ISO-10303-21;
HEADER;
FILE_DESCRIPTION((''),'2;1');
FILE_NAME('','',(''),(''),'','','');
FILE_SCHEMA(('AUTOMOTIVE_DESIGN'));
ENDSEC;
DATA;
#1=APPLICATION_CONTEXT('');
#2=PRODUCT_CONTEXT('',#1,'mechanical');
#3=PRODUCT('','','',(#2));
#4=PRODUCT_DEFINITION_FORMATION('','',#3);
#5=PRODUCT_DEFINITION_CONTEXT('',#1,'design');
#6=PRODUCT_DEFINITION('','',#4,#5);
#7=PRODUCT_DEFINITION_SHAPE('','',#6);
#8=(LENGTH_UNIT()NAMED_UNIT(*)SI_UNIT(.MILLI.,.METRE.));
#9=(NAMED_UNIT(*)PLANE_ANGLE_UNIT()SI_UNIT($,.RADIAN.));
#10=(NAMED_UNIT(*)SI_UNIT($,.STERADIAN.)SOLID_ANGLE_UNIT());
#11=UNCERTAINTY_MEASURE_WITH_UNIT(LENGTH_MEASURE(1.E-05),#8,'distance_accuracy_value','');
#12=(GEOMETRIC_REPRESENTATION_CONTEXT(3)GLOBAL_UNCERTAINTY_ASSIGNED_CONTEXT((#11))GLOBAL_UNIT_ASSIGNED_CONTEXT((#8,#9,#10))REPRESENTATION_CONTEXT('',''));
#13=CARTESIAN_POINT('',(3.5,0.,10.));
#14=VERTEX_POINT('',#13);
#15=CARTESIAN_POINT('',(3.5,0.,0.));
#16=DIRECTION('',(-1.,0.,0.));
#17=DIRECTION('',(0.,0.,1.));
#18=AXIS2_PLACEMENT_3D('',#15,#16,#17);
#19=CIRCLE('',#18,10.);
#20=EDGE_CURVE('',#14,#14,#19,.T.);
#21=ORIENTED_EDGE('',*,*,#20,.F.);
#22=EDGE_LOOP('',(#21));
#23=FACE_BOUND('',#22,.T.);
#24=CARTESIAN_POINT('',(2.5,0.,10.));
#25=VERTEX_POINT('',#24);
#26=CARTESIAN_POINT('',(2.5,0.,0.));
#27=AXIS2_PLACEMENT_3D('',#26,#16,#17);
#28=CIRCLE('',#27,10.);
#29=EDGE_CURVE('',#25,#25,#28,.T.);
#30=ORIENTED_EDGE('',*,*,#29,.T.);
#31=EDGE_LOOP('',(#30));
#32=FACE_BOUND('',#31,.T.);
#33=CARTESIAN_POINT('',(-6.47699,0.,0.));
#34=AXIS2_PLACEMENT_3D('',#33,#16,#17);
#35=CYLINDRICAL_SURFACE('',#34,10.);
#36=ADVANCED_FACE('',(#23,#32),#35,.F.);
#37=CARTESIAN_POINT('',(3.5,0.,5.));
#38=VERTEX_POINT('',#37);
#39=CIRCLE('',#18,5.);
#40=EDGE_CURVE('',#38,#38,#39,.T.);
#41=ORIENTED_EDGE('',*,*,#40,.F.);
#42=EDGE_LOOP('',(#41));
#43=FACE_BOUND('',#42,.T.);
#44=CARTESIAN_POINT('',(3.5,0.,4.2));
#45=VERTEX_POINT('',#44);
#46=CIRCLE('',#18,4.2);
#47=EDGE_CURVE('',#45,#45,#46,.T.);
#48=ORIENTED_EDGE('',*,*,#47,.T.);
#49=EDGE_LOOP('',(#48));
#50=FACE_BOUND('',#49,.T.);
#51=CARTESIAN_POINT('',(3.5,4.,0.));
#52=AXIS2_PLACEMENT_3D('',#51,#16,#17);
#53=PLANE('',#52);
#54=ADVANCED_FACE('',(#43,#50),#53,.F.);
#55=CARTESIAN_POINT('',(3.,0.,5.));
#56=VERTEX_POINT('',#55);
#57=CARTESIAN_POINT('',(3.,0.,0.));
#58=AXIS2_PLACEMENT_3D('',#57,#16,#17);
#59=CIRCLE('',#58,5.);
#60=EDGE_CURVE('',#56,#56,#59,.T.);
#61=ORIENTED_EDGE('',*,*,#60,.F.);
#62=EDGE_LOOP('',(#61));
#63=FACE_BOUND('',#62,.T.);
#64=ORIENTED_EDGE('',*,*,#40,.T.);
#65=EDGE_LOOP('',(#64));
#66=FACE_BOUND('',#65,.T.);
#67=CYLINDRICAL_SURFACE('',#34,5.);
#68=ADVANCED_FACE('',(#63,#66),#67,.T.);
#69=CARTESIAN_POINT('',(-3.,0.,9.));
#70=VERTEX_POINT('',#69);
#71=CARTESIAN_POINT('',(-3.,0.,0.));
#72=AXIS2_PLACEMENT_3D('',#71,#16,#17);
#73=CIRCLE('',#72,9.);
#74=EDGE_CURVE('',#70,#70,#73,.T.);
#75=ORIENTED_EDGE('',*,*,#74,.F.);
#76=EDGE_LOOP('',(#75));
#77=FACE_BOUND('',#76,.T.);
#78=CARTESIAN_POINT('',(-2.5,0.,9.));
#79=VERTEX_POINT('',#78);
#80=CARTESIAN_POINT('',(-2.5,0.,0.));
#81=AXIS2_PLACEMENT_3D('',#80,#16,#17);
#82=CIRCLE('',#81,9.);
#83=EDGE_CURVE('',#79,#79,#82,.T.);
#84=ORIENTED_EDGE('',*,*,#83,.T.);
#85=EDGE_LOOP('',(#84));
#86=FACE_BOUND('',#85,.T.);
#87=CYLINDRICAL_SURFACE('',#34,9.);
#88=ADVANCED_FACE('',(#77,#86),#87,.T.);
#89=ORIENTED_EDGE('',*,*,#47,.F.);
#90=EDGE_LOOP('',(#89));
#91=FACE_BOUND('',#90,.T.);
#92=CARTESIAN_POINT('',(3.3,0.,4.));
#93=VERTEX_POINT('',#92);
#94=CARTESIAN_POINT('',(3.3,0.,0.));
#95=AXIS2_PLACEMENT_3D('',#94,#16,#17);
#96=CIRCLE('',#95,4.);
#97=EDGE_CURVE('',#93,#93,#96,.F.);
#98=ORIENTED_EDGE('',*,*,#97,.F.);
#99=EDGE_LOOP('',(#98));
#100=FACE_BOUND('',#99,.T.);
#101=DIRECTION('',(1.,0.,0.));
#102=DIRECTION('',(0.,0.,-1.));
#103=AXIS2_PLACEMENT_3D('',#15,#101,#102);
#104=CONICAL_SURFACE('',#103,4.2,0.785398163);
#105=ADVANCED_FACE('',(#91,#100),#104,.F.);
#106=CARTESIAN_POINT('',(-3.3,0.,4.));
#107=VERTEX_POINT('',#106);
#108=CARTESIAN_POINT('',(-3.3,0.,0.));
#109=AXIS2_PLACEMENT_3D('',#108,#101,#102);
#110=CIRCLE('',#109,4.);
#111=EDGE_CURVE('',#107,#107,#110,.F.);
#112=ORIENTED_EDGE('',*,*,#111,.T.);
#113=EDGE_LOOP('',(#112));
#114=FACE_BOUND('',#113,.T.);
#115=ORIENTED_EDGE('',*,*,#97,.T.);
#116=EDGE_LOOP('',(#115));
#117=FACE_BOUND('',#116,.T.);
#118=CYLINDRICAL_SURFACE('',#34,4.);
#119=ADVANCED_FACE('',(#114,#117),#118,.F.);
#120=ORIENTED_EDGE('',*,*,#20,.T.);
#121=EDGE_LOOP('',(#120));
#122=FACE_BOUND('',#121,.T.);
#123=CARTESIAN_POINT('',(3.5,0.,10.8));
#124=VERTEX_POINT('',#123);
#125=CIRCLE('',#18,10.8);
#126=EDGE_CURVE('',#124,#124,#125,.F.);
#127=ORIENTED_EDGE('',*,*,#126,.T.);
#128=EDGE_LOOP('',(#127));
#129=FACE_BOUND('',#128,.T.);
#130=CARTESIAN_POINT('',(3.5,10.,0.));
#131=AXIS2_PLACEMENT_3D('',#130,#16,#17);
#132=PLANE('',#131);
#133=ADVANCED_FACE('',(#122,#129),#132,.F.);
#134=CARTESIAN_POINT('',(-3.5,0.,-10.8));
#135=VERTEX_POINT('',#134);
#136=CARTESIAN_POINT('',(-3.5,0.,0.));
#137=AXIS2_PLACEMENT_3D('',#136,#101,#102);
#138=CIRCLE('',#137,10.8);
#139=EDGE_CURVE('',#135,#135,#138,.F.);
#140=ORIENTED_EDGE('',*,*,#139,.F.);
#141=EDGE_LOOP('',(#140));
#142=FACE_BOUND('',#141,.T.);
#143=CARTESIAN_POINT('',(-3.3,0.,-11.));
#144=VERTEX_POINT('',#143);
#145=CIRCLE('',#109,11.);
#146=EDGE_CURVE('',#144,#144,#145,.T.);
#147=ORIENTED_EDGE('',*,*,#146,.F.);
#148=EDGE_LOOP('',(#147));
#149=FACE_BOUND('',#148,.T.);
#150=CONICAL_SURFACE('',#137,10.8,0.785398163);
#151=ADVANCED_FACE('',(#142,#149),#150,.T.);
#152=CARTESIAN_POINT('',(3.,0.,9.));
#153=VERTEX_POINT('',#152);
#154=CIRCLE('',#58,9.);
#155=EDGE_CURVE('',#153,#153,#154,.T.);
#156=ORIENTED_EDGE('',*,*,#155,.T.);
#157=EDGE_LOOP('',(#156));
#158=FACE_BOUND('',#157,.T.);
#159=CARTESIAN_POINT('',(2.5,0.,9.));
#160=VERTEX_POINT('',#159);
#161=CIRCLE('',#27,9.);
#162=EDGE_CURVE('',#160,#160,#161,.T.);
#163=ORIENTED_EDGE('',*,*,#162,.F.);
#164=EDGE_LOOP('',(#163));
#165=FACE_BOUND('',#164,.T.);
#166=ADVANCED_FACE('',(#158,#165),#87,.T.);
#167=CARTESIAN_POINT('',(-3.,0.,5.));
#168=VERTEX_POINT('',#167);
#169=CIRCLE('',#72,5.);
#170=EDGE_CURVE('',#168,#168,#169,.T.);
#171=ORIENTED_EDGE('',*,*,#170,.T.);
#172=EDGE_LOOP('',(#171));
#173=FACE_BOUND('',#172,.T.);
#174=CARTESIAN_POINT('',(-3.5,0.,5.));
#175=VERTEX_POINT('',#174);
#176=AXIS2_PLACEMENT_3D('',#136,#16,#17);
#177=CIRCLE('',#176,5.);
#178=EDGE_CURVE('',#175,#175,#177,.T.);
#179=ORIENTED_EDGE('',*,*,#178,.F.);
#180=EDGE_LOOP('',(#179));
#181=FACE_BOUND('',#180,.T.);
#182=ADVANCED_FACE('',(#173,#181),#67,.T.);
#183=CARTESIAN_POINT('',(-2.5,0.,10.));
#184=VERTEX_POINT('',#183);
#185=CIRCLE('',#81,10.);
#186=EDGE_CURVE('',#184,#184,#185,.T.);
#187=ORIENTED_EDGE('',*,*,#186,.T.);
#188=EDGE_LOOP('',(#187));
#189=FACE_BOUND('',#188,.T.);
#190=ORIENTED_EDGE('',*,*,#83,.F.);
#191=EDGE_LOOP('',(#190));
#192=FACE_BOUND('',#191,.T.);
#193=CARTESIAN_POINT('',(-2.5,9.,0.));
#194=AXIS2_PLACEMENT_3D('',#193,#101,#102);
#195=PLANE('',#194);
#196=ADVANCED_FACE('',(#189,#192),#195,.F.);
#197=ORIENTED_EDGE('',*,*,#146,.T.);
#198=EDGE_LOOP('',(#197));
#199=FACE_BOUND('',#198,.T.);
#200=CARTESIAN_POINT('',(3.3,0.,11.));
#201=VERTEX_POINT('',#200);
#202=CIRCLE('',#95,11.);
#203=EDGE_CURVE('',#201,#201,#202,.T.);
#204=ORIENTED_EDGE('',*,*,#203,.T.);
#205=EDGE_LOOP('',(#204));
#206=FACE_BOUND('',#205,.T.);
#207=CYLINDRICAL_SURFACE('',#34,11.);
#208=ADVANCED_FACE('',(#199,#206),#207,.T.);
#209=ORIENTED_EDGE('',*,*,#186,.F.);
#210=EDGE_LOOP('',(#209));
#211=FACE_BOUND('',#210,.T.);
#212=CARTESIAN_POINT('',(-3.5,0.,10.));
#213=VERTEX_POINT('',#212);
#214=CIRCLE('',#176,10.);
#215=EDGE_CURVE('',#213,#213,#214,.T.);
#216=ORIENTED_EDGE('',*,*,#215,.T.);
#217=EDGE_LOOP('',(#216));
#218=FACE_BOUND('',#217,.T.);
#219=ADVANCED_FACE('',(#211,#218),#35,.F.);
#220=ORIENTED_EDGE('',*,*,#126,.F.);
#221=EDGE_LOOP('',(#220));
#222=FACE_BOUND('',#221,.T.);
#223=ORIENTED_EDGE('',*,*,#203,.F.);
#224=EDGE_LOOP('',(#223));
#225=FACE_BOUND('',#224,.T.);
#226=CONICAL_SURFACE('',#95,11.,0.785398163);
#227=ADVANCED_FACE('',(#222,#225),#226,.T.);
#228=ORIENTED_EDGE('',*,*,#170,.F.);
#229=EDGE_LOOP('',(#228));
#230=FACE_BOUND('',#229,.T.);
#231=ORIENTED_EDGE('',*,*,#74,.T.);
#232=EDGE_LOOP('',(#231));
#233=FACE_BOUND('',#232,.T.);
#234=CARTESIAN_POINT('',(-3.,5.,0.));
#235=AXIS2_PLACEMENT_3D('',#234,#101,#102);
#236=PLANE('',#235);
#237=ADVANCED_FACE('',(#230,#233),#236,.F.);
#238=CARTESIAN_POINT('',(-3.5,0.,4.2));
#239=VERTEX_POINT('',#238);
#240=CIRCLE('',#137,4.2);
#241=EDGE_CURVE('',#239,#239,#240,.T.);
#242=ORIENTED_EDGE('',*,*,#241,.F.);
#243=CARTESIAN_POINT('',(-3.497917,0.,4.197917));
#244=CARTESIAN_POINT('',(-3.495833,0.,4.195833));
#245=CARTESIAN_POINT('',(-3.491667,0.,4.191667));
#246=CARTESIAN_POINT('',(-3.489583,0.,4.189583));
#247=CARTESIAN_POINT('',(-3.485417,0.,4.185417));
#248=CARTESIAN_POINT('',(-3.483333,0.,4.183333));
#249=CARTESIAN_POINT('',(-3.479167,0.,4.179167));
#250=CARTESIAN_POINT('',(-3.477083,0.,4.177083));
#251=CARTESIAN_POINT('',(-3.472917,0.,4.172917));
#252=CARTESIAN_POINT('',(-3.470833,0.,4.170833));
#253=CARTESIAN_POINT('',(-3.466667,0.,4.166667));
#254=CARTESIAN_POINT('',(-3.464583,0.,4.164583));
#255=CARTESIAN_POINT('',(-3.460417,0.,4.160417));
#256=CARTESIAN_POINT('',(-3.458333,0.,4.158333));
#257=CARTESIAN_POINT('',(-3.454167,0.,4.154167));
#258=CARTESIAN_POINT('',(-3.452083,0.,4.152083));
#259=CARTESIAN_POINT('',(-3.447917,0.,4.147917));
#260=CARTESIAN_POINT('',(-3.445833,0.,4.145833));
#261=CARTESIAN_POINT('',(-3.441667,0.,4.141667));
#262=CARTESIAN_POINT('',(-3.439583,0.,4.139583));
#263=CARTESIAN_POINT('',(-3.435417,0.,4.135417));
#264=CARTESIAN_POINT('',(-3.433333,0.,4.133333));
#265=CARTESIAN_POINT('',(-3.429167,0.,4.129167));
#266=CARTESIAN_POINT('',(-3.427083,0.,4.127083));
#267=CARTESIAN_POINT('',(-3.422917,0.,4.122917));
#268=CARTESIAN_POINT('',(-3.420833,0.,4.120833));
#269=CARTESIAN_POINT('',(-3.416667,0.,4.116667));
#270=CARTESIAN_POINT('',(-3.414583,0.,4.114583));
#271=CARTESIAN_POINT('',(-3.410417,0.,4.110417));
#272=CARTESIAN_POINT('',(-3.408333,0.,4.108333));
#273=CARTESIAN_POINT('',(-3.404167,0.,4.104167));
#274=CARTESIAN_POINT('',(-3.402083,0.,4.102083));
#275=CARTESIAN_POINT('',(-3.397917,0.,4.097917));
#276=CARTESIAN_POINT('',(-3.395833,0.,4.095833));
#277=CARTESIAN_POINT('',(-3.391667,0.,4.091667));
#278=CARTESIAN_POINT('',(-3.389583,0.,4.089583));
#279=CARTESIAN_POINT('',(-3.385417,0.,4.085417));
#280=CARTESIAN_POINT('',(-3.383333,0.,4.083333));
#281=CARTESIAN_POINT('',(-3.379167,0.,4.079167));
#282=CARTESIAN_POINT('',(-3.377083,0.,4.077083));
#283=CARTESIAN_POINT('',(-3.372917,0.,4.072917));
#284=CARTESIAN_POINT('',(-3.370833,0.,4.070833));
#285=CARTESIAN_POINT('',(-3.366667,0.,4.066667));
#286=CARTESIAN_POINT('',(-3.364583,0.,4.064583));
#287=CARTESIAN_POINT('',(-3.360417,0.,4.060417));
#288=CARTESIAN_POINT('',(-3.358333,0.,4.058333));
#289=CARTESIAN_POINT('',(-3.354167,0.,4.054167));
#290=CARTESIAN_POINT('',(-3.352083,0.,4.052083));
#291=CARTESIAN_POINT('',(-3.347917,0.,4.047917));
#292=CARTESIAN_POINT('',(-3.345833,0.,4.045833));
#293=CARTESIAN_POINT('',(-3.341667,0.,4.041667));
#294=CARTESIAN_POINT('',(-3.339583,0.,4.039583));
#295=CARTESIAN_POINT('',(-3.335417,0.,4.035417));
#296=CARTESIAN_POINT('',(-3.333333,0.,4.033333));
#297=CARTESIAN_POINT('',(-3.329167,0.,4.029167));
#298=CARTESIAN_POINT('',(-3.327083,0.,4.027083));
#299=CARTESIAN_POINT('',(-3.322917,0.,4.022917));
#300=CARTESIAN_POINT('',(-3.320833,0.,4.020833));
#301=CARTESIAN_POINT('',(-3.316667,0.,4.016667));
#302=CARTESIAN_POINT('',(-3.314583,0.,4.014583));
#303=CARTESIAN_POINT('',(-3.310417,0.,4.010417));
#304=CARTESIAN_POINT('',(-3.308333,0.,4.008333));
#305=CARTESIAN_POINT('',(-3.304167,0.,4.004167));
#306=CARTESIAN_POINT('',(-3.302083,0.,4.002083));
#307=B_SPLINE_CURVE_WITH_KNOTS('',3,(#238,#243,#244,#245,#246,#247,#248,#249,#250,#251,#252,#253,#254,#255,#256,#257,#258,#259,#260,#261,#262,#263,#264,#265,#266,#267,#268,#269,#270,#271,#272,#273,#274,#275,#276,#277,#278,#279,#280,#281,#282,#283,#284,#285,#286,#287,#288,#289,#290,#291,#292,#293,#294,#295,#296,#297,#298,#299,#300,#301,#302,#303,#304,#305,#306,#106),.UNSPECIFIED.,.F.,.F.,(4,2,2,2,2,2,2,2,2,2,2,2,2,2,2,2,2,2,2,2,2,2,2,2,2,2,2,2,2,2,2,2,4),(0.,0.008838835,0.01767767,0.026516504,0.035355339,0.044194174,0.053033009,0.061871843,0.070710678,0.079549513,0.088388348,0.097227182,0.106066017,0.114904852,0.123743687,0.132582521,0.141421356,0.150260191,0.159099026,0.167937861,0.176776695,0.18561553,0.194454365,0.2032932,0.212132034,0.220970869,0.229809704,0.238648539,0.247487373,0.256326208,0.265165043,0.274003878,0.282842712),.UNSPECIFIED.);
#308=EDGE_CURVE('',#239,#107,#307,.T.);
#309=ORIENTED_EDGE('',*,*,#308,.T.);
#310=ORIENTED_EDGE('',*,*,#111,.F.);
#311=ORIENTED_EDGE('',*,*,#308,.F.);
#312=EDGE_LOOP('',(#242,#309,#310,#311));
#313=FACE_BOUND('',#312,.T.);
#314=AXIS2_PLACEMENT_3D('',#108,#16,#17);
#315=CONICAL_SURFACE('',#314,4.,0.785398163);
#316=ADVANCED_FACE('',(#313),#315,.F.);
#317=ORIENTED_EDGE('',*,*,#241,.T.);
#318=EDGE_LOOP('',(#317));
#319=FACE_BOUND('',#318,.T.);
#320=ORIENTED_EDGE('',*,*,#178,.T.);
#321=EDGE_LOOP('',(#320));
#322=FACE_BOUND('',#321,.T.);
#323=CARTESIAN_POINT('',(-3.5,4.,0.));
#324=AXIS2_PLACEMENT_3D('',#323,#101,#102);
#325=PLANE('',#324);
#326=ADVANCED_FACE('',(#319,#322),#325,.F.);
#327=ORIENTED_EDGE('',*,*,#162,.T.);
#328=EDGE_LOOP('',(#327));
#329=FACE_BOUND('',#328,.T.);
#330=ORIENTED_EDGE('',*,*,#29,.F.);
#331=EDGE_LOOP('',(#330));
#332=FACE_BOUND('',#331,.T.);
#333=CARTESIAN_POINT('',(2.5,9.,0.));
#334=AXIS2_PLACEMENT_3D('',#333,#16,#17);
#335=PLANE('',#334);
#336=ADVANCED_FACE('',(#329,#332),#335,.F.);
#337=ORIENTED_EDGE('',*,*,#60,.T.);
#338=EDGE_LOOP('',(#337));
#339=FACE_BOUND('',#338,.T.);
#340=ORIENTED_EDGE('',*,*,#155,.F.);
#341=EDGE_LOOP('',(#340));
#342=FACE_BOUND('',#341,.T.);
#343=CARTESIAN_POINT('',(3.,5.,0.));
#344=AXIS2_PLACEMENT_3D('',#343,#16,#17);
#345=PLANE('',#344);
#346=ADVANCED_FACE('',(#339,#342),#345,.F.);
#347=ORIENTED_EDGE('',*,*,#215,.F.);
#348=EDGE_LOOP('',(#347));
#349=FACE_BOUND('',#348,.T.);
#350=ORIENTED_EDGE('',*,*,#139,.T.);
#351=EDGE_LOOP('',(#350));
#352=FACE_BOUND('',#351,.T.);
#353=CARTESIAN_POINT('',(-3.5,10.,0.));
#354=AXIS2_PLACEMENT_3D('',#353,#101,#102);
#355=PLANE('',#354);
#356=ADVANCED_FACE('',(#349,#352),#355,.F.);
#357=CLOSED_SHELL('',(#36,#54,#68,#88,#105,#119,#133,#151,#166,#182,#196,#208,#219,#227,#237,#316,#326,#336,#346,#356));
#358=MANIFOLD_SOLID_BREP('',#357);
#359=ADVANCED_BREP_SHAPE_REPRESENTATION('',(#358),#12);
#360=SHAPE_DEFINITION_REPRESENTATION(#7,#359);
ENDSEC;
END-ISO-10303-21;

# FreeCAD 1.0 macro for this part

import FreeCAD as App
import Part
import Sketcher

V = App.Vector
Q = App.Units.Quantity


def edges_at(feature, points):
    """Names of the edges that pass closest to the given points."""
    edges = feature.Shape.Edges
    near = lambda p: min(range(len(edges)), key=lambda i: edges[i].distToShape(Part.Vertex(*p))[0])
    return sorted({f"Edge{near(p) + 1}" for p in points})


def add_polygon(sketch, points):
    """Adds a closed chain of lines whose ends are joined by coincident constraints."""
    first, n = sketch.GeometryCount, len(points)
    for a, b in zip(points, points[1:] + points[:1]):
        sketch.addGeometry(Part.LineSegment(App.Vector(*a, 0), App.Vector(*b, 0)), False)
    for i in range(n):
        sketch.addConstraint(Sketcher.Constraint("Coincident", first + i, 2, first + (i + 1) % n, 1))

doc = App.newDocument("Part")
body = doc.addObject("PartDesign::Body", "Body")

sketch1 = body.newObject("Sketcher::SketchObject", "Sketch")
sketch1.AttachmentSupport = (doc.getObject("XY_Plane"), [""])
sketch1.MapMode = "FlatFace"
add_polygon(sketch1, [(-3.5, 4), (3.5, 4), (3.5, 5), (3, 5), (3, 9), (2.5, 9), (2.5, 10), (3.5, 10), (3.5, 11), (-3.5, 11), (-3.5, 10), (-2.5, 10), (-2.5, 9), (-3, 9), (-3, 5), (-3.5, 5)])
sketch1.addConstraint([
    Sketcher.Constraint("Horizontal", 0),
    Sketcher.Constraint("Vertical", 1),
    Sketcher.Constraint("Horizontal", 2),
    Sketcher.Constraint("Vertical", 3),
    Sketcher.Constraint("Horizontal", 4),
    Sketcher.Constraint("Vertical", 5),
    Sketcher.Constraint("Horizontal", 6),
    Sketcher.Constraint("Vertical", 7),
    Sketcher.Constraint("Horizontal", 8),
    Sketcher.Constraint("Vertical", 9),
    Sketcher.Constraint("Horizontal", 10),
    Sketcher.Constraint("Vertical", 11),
    Sketcher.Constraint("Horizontal", 12),
    Sketcher.Constraint("Vertical", 13),
    Sketcher.Constraint("Horizontal", 14),
    Sketcher.Constraint("Vertical", 15),
    Sketcher.Constraint("Symmetric", 6, 2, 9, 2, -2),
    Sketcher.Constraint("Symmetric", 4, 2, 11, 2, -2),
    Sketcher.Constraint("Symmetric", 2, 2, 13, 2, -2),
    Sketcher.Constraint("Vertical", 1, 2, 6, 2),
    Sketcher.Constraint("Vertical", 9, 2, 14, 2),
    Sketcher.Constraint("Equal", 2, 4),
    Sketcher.Constraint("Equal", 10, 1),
    Sketcher.Constraint("Equal", 1, 5),
    Sketcher.Constraint("Equal", 5, 7),
    Sketcher.Constraint("DistanceX", 0, 1, 0, 2, Q("7 mm")),
    Sketcher.Constraint("DistanceX", 6, 1, 6, 2, Q("1 mm")),
    Sketcher.Constraint("DistanceY", 3, 1, 3, 2, Q("4 mm")),
    Sketcher.Constraint("DistanceY", -1, 1, 0, 2, Q("4 mm")),
])
revolution = body.newObject("PartDesign::Revolution", "Revolution")
revolution.Profile = sketch1
revolution.ReferenceAxis = (sketch1, ["H_Axis"])
revolution.Angle = 360
doc.recompute()

chamfer = body.newObject("PartDesign::Chamfer", "Chamfer")
chamfer.Base = (revolution, edges_at(revolution, [
    (3.5, 0, -4),
    (-3.5, 0, -4),
    (-3.5, 0, -11),
    (3.5, 0, -11),
]))
chamfer.Size = 0.2

doc.recompute()
